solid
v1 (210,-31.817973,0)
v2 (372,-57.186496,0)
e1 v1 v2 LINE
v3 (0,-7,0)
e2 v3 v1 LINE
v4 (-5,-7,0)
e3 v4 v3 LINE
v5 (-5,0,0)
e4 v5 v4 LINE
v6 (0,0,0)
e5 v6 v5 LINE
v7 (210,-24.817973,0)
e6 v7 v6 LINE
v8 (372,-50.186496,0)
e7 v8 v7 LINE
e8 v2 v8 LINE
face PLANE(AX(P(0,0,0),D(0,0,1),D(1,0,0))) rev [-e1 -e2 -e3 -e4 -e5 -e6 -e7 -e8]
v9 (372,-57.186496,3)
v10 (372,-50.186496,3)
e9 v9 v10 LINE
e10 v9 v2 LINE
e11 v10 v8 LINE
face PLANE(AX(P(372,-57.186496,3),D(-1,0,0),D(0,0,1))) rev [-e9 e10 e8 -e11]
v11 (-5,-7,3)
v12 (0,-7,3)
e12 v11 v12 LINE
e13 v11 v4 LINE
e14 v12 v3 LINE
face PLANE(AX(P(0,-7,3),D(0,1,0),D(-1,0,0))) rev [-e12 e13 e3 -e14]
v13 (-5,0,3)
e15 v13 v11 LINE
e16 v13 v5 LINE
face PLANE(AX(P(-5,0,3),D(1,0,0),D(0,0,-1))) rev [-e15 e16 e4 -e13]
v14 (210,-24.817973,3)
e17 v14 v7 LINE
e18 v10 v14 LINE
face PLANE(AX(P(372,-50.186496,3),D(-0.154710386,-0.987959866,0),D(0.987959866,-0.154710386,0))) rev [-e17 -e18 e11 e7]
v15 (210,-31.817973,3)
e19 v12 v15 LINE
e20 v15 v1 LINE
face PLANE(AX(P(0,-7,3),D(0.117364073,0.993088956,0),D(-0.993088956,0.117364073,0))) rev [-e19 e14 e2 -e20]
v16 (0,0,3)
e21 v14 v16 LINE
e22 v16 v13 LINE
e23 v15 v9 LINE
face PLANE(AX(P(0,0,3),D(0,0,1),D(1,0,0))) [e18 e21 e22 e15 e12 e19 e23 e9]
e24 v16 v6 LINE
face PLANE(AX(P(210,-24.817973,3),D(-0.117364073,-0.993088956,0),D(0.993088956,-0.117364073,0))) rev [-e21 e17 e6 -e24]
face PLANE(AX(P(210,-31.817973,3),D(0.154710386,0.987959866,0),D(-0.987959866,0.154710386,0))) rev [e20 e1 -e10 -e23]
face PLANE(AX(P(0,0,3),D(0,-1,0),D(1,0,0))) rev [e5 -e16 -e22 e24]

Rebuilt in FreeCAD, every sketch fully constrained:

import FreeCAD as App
import Part
import Sketcher
from FreeCAD import Vector
Q = App.Units.Quantity


def add_polygon(sketch, points):
    """Adds a closed chain of lines whose ends are joined by coincident constraints."""
    first, n = sketch.GeometryCount, len(points)
    for a, b in zip(points, points[1:] + points[:1]):
        sketch.addGeometry(Part.LineSegment(App.Vector(*a, 0), App.Vector(*b, 0)), False)
    for i in range(n):
        sketch.addConstraint(Sketcher.Constraint("Coincident", first + i, 2, first + (i + 1) % n, 1))

doc = App.newDocument("Part")
body = doc.addObject("PartDesign::Body", "Body")

sketch1 = doc.addObject("Sketcher::SketchObject", "Sketch")
body.addObject(sketch1)
sketch1.AttachmentSupport = (doc.XY_Plane, [""])
sketch1.MapMode = "FlatFace"
add_polygon(sketch1, [(0, -7), (210, -32), (372, -57), (372, -50), (210, -25), (0, 0), (-5, 0), (-5, -7)])
sketch1.addConstraint(Sketcher.Constraint("Vertical", 2))
sketch1.addConstraint(Sketcher.Constraint("Horizontal", 5))
sketch1.addConstraint(Sketcher.Constraint("Vertical", 6))
sketch1.addConstraint(Sketcher.Constraint("Horizontal", 7))
sketch1.addConstraint(Sketcher.Constraint("Coincident", 4, 2, -1, 1))
sketch1.addConstraint(Sketcher.Constraint("PointOnObject", 7, 2, -2))
sketch1.addConstraint(Sketcher.Constraint("Parallel", 1, 3))
sketch1.addConstraint(Sketcher.Constraint("Parallel", 0, 4))
sketch1.addConstraint(Sketcher.Constraint("Vertical", 0, 2, 3, 2))
sketch1.addConstraint(Sketcher.Constraint("DistanceX", 5, 2, 5, 1, Q("5 mm")))
sketch1.addConstraint(Sketcher.Constraint("DistanceY", 2, 1, 2, 2, Q("7 mm")))
sketch1.addConstraint(Sketcher.Constraint("DistanceX", -1, 1, 0, 2, Q("210 mm")))
sketch1.addConstraint(Sketcher.Constraint("DistanceX", -1, 1, 1, 2, Q("372 mm")))
sketch1.addConstraint(Sketcher.Constraint("Angle", 1, Q("-8.9 deg")))
sketch1.addConstraint(Sketcher.Constraint("Angle", 0, Q("-6.74 deg")))
pad1 = doc.addObject("PartDesign::Pad", "Pad")
body.addObject(pad1)
pad1.Profile = sketch1
pad1.Length = 3

doc.recompute()
